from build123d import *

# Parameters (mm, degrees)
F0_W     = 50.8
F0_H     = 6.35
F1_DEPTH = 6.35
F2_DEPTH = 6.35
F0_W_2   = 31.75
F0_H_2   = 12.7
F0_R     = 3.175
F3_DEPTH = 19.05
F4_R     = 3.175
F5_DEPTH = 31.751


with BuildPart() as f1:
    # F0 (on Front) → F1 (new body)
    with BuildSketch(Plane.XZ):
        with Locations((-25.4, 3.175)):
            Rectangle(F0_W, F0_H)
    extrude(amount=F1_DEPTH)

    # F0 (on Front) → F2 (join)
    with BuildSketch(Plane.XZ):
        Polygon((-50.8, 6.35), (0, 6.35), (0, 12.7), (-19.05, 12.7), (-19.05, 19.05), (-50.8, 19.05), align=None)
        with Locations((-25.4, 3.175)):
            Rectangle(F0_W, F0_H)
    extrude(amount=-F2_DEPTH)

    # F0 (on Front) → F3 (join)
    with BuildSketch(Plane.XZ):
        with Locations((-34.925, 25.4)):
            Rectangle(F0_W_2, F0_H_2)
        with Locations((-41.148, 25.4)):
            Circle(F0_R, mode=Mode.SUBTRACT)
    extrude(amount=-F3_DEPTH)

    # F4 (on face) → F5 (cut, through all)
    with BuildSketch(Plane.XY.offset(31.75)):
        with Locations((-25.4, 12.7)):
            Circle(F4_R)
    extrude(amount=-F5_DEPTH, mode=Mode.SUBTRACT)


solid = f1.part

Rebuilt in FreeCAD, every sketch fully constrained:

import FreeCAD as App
import Part
import Sketcher
from FreeCAD import Vector
Q = App.Units.Quantity


def add_polygon(sketch, points):
    """Adds a closed chain of lines whose ends are joined by coincident constraints."""
    first, n = sketch.GeometryCount, len(points)
    for a, b in zip(points, points[1:] + points[:1]):
        sketch.addGeometry(Part.LineSegment(App.Vector(*a, 0), App.Vector(*b, 0)), False)
    for i in range(n):
        sketch.addConstraint(Sketcher.Constraint("Coincident", first + i, 2, first + (i + 1) % n, 1))

doc = App.newDocument("Part")
body = doc.addObject("PartDesign::Body", "Body")

# Sketch on XZ plane
sketch1 = body.newObject("Sketcher::SketchObject", "Sketch")
sketch1.AttachmentSupport = (doc.getObject("XZ_Plane"), [""])
sketch1.MapMode = "FlatFace"
add_polygon(sketch1, [(-51, 6), (-51, 0), (0, 0), (0, 6)])  # lines 0-3
sketch1.addConstraint([
    Sketcher.Constraint("Vertical", 0),
    Sketcher.Constraint("Horizontal", 1),
    Sketcher.Constraint("Vertical", 2),
    Sketcher.Constraint("Horizontal", 3),
    Sketcher.Constraint("Coincident", 1, 2, -1, 1),
    Sketcher.Constraint("DistanceX", 1, 1, 1, 2, Q("2 in")),
    Sketcher.Constraint("DistanceY", 0, 2, 0, 1, Q("0.25 in")),
])
pad1 = body.newObject("PartDesign::Pad", "Pad")
pad1.Profile = sketch1
pad1.Length = Q("0.25 in")

# Sketch on XZ plane
sketch2 = body.newObject("Sketcher::SketchObject", "Sketch001")
sketch2.AttachmentSupport = (doc.getObject("XZ_Plane"), [""])
sketch2.MapMode = "FlatFace"
add_polygon(sketch2, [(0, 13), (-19, 13), (-19, 19), (-51, 19), (-51, 0), (0, 0)])  # lines 0-5
sketch2.addConstraint([
    Sketcher.Constraint("Horizontal", 0),
    Sketcher.Constraint("Vertical", 1),
    Sketcher.Constraint("Horizontal", 2),
    Sketcher.Constraint("Vertical", 3),
    Sketcher.Constraint("Horizontal", 4),
    Sketcher.Constraint("Vertical", 5),
    Sketcher.Constraint("Coincident", 4, 2, -1, 1),
    Sketcher.Constraint("Equal", 0, 3),
    Sketcher.Constraint("DistanceX", 4, 1, 4, 2, Q("2 in")),
    Sketcher.Constraint("DistanceY", 5, 1, 5, 2, Q("0.5 in")),
    Sketcher.Constraint("DistanceX", 0, 2, 0, 1, Q("0.75 in")),
])
pad2 = body.newObject("PartDesign::Pad", "Pad001")
pad2.Profile = sketch2
pad2.Length = Q("0.25 in")
pad2.Reversed = True

# Sketch on XZ plane
sketch3 = body.newObject("Sketcher::SketchObject", "Sketch002")
sketch3.AttachmentSupport = (doc.getObject("XZ_Plane"), [""])
sketch3.MapMode = "FlatFace"
add_polygon(sketch3, [(-50.8, 31.8), (-50.8, 19.1), (-19.1, 19.1), (-19.1, 31.8)])  # lines 0-3
sketch3.addGeometry(Part.Circle(Vector(-41.1, 25.4, 0), Vector(0, 0, 1), 3.2), False)  # 4
sketch3.addConstraint([
    Sketcher.Constraint("Vertical", 0),
    Sketcher.Constraint("Horizontal", 1),
    Sketcher.Constraint("Vertical", 2),
    Sketcher.Constraint("Horizontal", 3),
    Sketcher.Constraint("Diameter", 4, Q("0.25 in")),
    Sketcher.Constraint("DistanceY", 0, 2, 0, 1, Q("0.5 in")),
    Sketcher.Constraint("DistanceY", -1, 1, 4, 3, Q("1 in")),
    Sketcher.Constraint("DistanceX", 0, 2, -1, 1, Q("2 in")),
    Sketcher.Constraint("DistanceX", 1, 1, 1, 2, Q("1.25 in")),
    Sketcher.Constraint("DistanceX", 4, 3, -1, 1, Q("1.62 in")),
    Sketcher.Constraint("DistanceY", -1, 1, 0, 2, Q("0.75 in")),
])
pad3 = body.newObject("PartDesign::Pad", "Pad002")
pad3.Profile = sketch3
pad3.Length = Q("0.75 in")
pad3.Reversed = True

# Sketch on XY plane
sketch4 = body.newObject("Sketcher::SketchObject", "Sketch003")
sketch4.AttachmentSupport = (doc.getObject("XY_Plane"), [""])
sketch4.MapMode = "FlatFace"
sketch4.AttachmentOffset = App.Placement(Vector(0, 0, 1.25 * 25.4), App.Rotation())
sketch4.addGeometry(Part.Circle(Vector(-25.4, 12.7, 0), Vector(0, 0, 1), 3.2), False)
sketch4.addConstraint([
    Sketcher.Constraint("Diameter", 0, Q("0.25 in")),
    Sketcher.Constraint("DistanceX", 0, 3, -1, 1, Q("1 in")),
    Sketcher.Constraint("DistanceY", -1, 1, 0, 3, Q("0.5 in")),
])
pocket1 = body.newObject("PartDesign::Pocket", "Pocket")
pocket1.Profile = sketch4
pocket1.Type = "ThroughAll"

doc.recompute()
